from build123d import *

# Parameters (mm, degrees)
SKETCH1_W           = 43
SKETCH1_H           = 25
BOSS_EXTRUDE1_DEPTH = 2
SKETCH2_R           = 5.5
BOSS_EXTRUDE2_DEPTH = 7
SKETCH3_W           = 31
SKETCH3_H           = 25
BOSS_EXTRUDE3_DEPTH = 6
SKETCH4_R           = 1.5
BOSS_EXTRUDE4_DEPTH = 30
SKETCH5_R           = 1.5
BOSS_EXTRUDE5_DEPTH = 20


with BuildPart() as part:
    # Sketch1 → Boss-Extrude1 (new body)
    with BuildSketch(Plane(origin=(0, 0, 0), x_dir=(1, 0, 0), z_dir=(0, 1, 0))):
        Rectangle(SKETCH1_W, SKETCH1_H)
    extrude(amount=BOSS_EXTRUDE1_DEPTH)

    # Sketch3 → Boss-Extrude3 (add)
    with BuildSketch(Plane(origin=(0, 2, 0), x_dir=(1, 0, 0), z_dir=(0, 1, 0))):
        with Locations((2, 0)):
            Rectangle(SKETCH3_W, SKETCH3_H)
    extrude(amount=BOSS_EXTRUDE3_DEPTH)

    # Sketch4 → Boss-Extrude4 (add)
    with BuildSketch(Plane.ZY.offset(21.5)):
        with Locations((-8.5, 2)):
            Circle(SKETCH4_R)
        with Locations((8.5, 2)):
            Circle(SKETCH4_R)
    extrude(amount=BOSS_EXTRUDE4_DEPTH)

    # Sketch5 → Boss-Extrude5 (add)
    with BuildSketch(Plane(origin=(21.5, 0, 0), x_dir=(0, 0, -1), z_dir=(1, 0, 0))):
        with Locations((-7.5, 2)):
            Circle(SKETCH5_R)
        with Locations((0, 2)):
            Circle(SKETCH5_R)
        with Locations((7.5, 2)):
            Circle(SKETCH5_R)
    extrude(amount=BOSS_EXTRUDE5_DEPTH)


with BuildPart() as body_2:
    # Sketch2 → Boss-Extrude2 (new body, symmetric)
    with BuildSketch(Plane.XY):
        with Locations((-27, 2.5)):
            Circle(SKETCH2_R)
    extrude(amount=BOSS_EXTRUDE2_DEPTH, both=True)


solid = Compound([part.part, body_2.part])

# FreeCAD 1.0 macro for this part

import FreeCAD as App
import Part
import Sketcher
from FreeCAD import Vector

doc = App.newDocument("Part")
params = doc.addObject("Spreadsheet::Sheet", "Params")
for row, (alias, value) in enumerate([
    ("sketch1_width", "43 mm"),
    ("sketch1_height", "25 mm"),
    ("pad1_length", "2 mm"),
    ("sketch2_width", "31 mm"),
    ("sketch2_height", "25 mm"),
    ("pad2_length", "6 mm"),
    ("sketch3_diameter", "3 mm"),
    ("pad3_length", "30 mm"),
    ("sketch4_diameter", "3 mm"),
    ("pad4_length", "20 mm"),
    ("sketch5_diameter", "11 mm"),
    ("pad5_length", "14 mm"),
], start=1):
    params.set(f"A{row}", alias)
    params.set(f"B{row}", "=" + value)
    params.setAlias(f"B{row}", alias)

body = doc.addObject("PartDesign::Body", "Body")

# Sketch on XZ plane
sketch1 = body.newObject("Sketcher::SketchObject", "Sketch")
sketch1.AttachmentSupport = (doc.getObject("XZ_Plane"), [""])
sketch1.MapMode = "FlatFace"
sketch1.addGeometry([
    Part.LineSegment(Vector(-21.5, -12.5, 0), Vector(-21.5, 12.5, 0)),
    Part.LineSegment(Vector(-21.5, 12.5, 0), Vector(21.5, 12.5, 0)),
    Part.LineSegment(Vector(21.5, 12.5, 0), Vector(21.5, -12.5, 0)),
    Part.LineSegment(Vector(21.5, -12.5, 0), Vector(-21.5, -12.5, 0)),
], False)
sketch1.addConstraint([
    Sketcher.Constraint("Coincident", 0, 2, 1, 1),
    Sketcher.Constraint("Coincident", 1, 2, 2, 1),
    Sketcher.Constraint("Coincident", 2, 2, 3, 1),
    Sketcher.Constraint("Coincident", 3, 2, 0, 1),
    Sketcher.Constraint("Vertical", 0),
    Sketcher.Constraint("Horizontal", 1),
    Sketcher.Constraint("Vertical", 2),
    Sketcher.Constraint("Horizontal", 3),
    Sketcher.Constraint("Symmetric", 0, 2, 2, 2, -1, 1),
    Sketcher.Constraint("DistanceX", 1, 1, 1, 2, 43.0),
    Sketcher.Constraint("DistanceY", 0, 1, 0, 2, 25.0),
])
sketch1.setExpression("Constraints[9]", "Params.sketch1_width")
sketch1.setExpression("Constraints[10]", "Params.sketch1_height")
pad1 = body.newObject("PartDesign::Pad", "Pad")
pad1.Profile = sketch1
pad1.setExpression("Length", "Params.pad1_length")
pad1.Reversed = True

# Sketch on XZ plane
sketch2 = body.newObject("Sketcher::SketchObject", "Sketch001")
sketch2.AttachmentSupport = (doc.getObject("XZ_Plane"), [""])
sketch2.MapMode = "FlatFace"
sketch2.AttachmentOffset = App.Placement(Vector(0, 0, -2), App.Rotation())
sketch2.addGeometry([
    Part.LineSegment(Vector(-13.5, -12.5, 0), Vector(-13.5, 12.5, 0)),
    Part.LineSegment(Vector(-13.5, 12.5, 0), Vector(17.5, 12.5, 0)),
    Part.LineSegment(Vector(17.5, 12.5, 0), Vector(17.5, -12.5, 0)),
    Part.LineSegment(Vector(17.5, -12.5, 0), Vector(-13.5, -12.5, 0)),
], False)
sketch2.addConstraint([
    Sketcher.Constraint("Coincident", 0, 2, 1, 1),
    Sketcher.Constraint("Coincident", 1, 2, 2, 1),
    Sketcher.Constraint("Coincident", 2, 2, 3, 1),
    Sketcher.Constraint("Coincident", 3, 2, 0, 1),
    Sketcher.Constraint("Vertical", 0),
    Sketcher.Constraint("Horizontal", 1),
    Sketcher.Constraint("Vertical", 2),
    Sketcher.Constraint("Horizontal", 3),
    Sketcher.Constraint("DistanceX", 1, 1, 1, 2, 31.0),
    Sketcher.Constraint("DistanceY", 0, 1, 0, 2, 25.0),
    Sketcher.Constraint("DistanceX", 0, 2, -1, 1, 13.5),
    Sketcher.Constraint("DistanceY", -1, 1, 0, 2, 12.5),
])
sketch2.setExpression("Constraints[8]", "Params.sketch2_width")
sketch2.setExpression("Constraints[9]", "Params.sketch2_height")
pad2 = body.newObject("PartDesign::Pad", "Pad001")
pad2.Profile = sketch2
pad2.setExpression("Length", "Params.pad2_length")
pad2.Reversed = True

# Sketch on YZ plane
sketch3 = body.newObject("Sketcher::SketchObject", "Sketch002")
sketch3.AttachmentSupport = (doc.getObject("YZ_Plane"), [""])
sketch3.MapMode = "FlatFace"
sketch3.AttachmentOffset = App.Placement(Vector(0, 0, -21.5), App.Rotation())
sketch3.addGeometry([
    Part.Circle(Vector(2, -8.5, 0), Vector(0, 0, 1), 1.5),
    Part.Circle(Vector(2, 8.5, 0), Vector(0, 0, 1), 1.5),
], False)
sketch3.addConstraint([
    Sketcher.Constraint("Equal", 0, 1),
    Sketcher.Constraint("Symmetric", 0, 3, 1, 3, -1),
    Sketcher.Constraint("Diameter", 0, 3.0),
    Sketcher.Constraint("DistanceX", -1, 1, 0, 3, 2.0),
    Sketcher.Constraint("DistanceY", 0, 3, 1, 3, 17.0),
])
sketch3.setExpression("Constraints[2]", "Params.sketch3_diameter")
pad3 = body.newObject("PartDesign::Pad", "Pad002")
pad3.Profile = sketch3
pad3.setExpression("Length", "Params.pad3_length")
pad3.Reversed = True

# Sketch on YZ plane
sketch4 = body.newObject("Sketcher::SketchObject", "Sketch003")
sketch4.AttachmentSupport = (doc.getObject("YZ_Plane"), [""])
sketch4.MapMode = "FlatFace"
sketch4.AttachmentOffset = App.Placement(Vector(0, 0, 21.5), App.Rotation())
sketch4.addGeometry([
    Part.Circle(Vector(2, 7.5, 0), Vector(0, 0, 1), 1.5),
    Part.Circle(Vector(2, 0, 0), Vector(0, 0, 1), 1.5),
    Part.Circle(Vector(2, -7.5, 0), Vector(0, 0, 1), 1.5),
], False)
sketch4.addConstraint([
    Sketcher.Constraint("Equal", 0, 1),
    Sketcher.Constraint("Equal", 1, 2),
    Sketcher.Constraint("Symmetric", 0, 3, 2, 3, -1),
    Sketcher.Constraint("PointOnObject", 1, 3, -1),
    Sketcher.Constraint("Vertical", 0, 3, 1, 3),
    Sketcher.Constraint("Diameter", 0, 3.0),
    Sketcher.Constraint("DistanceX", -1, 1, 0, 3, 2.0),
    Sketcher.Constraint("DistanceY", 2, 3, 0, 3, 15.0),
])
sketch4.setExpression("Constraints[5]", "Params.sketch4_diameter")
pad4 = body.newObject("PartDesign::Pad", "Pad003")
pad4.Profile = sketch4
pad4.setExpression("Length", "Params.pad4_length")
body2 = doc.addObject("PartDesign::Body", "Body001")

# Sketch on XY plane
sketch5 = body2.newObject("Sketcher::SketchObject", "Sketch004")
sketch5.AttachmentSupport = (doc.getObject("XY_Plane001"), [""])
sketch5.MapMode = "FlatFace"
sketch5.addGeometry(Part.Circle(Vector(-27, 2.5, 0), Vector(0, 0, 1), 5.5), False)
sketch5.addConstraint([
    Sketcher.Constraint("Diameter", 0, 11.0),
    Sketcher.Constraint("DistanceX", 0, 3, -1, 1, 27.0),
    Sketcher.Constraint("DistanceY", -1, 1, 0, 3, 2.5),
])
sketch5.setExpression("Constraints[0]", "Params.sketch5_diameter")
pad5 = body2.newObject("PartDesign::Pad", "Pad004")
pad5.Profile = sketch5
pad5.setExpression("Length", "Params.pad5_length")
pad5.Midplane = True

doc.recompute()
